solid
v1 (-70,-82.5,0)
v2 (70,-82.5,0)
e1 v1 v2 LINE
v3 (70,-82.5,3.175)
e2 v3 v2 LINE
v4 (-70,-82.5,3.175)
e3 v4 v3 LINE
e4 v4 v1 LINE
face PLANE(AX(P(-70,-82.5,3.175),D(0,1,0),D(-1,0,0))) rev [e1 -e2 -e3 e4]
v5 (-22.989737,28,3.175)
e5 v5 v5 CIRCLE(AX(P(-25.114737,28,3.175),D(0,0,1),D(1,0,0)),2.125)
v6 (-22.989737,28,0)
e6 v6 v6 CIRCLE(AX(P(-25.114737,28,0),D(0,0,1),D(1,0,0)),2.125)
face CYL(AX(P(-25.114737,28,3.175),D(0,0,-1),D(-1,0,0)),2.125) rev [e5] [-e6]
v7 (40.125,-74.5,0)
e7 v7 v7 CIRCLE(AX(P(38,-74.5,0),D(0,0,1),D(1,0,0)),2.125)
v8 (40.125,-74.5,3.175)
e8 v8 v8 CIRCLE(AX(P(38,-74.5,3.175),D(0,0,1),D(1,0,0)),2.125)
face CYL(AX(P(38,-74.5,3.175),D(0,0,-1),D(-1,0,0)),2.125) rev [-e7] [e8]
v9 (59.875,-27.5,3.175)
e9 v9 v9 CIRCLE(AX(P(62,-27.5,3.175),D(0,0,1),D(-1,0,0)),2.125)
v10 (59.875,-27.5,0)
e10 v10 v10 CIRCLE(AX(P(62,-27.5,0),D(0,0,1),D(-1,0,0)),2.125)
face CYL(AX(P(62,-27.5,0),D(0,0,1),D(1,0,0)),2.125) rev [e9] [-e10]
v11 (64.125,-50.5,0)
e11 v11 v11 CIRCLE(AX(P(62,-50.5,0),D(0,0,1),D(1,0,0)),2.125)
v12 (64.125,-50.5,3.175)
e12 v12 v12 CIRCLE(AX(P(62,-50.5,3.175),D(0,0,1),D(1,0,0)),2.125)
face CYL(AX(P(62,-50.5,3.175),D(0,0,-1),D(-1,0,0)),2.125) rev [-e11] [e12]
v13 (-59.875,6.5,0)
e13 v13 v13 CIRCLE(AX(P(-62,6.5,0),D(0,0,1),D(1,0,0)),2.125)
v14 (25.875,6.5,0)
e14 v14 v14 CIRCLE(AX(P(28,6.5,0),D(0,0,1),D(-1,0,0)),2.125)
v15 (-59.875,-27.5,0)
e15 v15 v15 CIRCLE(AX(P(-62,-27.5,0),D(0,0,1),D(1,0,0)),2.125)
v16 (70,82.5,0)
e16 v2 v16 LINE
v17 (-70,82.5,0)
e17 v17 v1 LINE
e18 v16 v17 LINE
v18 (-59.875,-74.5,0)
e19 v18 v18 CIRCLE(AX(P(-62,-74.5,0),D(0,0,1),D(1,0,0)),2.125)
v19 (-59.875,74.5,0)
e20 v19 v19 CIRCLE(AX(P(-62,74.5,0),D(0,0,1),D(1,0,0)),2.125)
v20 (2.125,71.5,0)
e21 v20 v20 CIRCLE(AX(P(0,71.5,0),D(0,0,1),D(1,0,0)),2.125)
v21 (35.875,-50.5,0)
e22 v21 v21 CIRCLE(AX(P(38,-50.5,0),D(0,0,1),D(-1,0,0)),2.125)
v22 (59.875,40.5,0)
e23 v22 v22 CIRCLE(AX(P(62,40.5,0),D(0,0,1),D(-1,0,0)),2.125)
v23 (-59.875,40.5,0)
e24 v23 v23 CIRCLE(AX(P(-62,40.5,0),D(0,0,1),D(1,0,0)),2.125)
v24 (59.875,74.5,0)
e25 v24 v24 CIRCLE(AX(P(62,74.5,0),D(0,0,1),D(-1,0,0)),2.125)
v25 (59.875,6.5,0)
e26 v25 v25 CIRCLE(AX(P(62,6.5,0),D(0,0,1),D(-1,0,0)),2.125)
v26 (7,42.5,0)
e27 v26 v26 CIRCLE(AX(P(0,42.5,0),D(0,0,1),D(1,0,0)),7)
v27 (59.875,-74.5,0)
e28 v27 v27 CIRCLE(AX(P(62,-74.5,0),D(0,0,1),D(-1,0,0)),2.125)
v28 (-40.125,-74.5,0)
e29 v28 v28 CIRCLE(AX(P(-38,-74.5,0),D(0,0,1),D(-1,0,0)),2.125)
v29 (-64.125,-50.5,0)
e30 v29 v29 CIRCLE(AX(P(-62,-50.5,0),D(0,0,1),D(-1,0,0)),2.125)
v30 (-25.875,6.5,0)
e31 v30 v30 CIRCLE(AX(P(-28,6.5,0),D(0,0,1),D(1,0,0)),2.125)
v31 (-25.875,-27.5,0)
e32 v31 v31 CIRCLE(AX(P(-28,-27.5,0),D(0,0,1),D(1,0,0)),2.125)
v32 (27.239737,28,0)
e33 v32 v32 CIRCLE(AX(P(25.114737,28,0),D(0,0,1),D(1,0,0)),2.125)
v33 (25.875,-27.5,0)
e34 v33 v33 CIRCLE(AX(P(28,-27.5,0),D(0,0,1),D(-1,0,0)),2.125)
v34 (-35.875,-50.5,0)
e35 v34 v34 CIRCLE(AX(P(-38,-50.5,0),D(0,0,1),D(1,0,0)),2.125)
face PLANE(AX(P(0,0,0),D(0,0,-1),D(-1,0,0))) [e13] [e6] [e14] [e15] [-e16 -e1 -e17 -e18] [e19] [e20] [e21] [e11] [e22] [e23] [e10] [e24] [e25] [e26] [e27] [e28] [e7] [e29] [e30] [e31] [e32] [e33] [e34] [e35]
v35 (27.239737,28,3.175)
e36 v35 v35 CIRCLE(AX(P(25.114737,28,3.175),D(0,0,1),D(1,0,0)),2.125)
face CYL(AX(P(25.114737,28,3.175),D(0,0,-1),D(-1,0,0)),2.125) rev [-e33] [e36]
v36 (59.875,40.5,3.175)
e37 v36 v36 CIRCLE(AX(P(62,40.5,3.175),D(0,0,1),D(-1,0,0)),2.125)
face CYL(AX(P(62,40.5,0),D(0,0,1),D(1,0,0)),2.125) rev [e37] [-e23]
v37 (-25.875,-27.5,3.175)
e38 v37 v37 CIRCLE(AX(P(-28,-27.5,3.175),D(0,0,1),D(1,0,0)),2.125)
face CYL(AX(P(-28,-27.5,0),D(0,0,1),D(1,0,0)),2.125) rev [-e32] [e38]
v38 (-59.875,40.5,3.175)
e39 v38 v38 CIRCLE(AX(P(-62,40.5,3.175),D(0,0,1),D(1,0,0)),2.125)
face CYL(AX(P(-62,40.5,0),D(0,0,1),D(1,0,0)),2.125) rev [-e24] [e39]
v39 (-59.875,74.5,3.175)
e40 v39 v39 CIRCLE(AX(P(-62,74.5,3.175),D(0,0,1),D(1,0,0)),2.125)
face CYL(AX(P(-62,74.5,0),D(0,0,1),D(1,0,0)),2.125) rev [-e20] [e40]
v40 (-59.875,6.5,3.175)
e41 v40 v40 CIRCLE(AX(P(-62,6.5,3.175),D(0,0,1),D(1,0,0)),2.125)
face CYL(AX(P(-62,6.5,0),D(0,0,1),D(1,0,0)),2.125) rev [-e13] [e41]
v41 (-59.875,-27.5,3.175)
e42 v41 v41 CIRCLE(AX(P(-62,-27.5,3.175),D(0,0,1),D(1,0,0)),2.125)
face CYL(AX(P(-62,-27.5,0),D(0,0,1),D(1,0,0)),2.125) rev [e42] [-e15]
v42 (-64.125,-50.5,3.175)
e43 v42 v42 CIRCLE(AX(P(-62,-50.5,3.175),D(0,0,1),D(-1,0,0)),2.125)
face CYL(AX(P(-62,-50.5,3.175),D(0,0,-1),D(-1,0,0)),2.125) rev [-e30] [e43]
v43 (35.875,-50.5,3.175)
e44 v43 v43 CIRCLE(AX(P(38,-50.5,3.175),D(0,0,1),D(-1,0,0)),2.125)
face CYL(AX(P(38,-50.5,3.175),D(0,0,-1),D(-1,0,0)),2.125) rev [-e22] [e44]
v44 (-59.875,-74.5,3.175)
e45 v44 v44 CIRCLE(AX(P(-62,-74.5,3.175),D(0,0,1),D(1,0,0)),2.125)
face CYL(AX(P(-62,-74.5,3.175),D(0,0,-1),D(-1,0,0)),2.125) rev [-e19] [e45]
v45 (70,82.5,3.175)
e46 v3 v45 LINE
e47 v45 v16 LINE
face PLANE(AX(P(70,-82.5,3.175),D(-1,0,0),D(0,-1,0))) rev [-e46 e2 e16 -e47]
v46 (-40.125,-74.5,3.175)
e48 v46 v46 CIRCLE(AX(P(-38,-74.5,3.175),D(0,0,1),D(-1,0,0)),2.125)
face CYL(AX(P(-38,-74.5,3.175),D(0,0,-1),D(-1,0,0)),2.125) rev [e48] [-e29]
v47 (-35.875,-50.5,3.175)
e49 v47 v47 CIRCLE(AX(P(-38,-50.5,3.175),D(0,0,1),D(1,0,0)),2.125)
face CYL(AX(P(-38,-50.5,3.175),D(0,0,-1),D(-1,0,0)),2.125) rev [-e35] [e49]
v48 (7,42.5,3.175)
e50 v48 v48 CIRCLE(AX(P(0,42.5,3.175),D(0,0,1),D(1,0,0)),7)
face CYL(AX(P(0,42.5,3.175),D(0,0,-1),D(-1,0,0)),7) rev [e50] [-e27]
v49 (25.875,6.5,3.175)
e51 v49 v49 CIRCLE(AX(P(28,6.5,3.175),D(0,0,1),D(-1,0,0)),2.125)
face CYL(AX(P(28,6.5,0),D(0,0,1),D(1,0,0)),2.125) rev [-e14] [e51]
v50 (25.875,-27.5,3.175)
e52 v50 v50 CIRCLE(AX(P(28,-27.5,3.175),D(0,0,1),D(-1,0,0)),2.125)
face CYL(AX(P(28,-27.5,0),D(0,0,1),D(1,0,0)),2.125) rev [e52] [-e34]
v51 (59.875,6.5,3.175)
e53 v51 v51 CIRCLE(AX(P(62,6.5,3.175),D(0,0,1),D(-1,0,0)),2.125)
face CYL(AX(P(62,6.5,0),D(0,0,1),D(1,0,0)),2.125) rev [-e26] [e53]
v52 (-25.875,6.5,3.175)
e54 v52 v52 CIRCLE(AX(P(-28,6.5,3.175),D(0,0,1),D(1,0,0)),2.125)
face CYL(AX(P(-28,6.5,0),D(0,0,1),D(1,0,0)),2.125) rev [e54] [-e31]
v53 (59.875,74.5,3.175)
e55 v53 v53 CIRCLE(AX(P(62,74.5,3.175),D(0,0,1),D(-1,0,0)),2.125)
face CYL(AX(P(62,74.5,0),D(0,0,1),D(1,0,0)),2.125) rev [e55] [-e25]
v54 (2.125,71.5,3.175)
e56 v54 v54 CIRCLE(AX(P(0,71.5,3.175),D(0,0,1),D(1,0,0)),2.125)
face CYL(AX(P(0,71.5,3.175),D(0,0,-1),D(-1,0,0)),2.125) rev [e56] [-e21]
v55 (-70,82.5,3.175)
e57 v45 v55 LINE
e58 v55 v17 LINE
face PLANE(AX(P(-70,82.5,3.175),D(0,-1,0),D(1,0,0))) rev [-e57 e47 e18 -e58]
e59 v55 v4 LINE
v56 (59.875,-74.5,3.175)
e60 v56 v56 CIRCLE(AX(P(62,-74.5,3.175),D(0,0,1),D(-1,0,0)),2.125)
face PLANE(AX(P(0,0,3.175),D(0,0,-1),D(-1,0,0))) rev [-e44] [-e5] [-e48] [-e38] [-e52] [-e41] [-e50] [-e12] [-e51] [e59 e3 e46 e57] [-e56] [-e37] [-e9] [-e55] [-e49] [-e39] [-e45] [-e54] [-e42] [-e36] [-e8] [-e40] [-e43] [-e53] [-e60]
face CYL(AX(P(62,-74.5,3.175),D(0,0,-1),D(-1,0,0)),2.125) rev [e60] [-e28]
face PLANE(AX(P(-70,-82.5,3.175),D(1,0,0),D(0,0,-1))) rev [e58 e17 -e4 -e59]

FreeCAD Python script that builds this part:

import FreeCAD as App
import Part
import Sketcher

doc = App.newDocument("Part")
body = doc.addObject("PartDesign::Body", "Body")

# Sketch on XY plane
sketch1 = doc.addObject("Sketcher::SketchObject", "Sketch")
body.addObject(sketch1)
sketch1.AttachmentSupport = (doc.XY_Plane, [""])
sketch1.MapMode = "FlatFace"
sketch1.addGeometry(Part.LineSegment(App.Vector(-70, 82.5, 0), App.Vector(-70, -82.5, 0)), False)
sketch1.addGeometry(Part.LineSegment(App.Vector(-70, -82.5, 0), App.Vector(70, -82.5, 0)), False)
sketch1.addGeometry(Part.LineSegment(App.Vector(70, -82.5, 0), App.Vector(70, 82.5, 0)), False)
sketch1.addGeometry(Part.LineSegment(App.Vector(70, 82.5, 0), App.Vector(-70, 82.5, 0)), False)
sketch1.addGeometry(Part.Circle(App.Vector(-62, -74.5, 0), App.Vector(0, 0, 1), 2.1), False)
sketch1.addGeometry(Part.Circle(App.Vector(-38, -74.5, 0), App.Vector(0, 0, 1), 2.1), False)
sketch1.addGeometry(Part.Circle(App.Vector(-62, -50.5, 0), App.Vector(0, 0, 1), 2.1), False)
sketch1.addGeometry(Part.Circle(App.Vector(-38, -50.5, 0), App.Vector(0, 0, 1), 2.1), False)
sketch1.addGeometry(Part.Circle(App.Vector(38, -74.5, 0), App.Vector(0, 0, 1), 2.1), False)
sketch1.addGeometry(Part.Circle(App.Vector(62, -74.5, 0), App.Vector(0, 0, 1), 2.1), False)
sketch1.addGeometry(Part.Circle(App.Vector(38, -50.5, 0), App.Vector(0, 0, 1), 2.1), False)
sketch1.addGeometry(Part.Circle(App.Vector(62, -50.5, 0), App.Vector(0, 0, 1), 2.1), False)
sketch1.addGeometry(Part.Circle(App.Vector(-25.1, 28, 0), App.Vector(0, 0, 1), 2.1), False)
sketch1.addGeometry(Part.Circle(App.Vector(25.1, 28, 0), App.Vector(0, 0, 1), 2.1), False)
sketch1.addGeometry(Part.Circle(App.Vector(0, 42.5, 0), App.Vector(0, 0, 1), 7), False)
sketch1.addGeometry(Part.Circle(App.Vector(0, 71.5, 0), App.Vector(0, 0, 1), 2.1), False)
sketch1.addConstraint(Sketcher.Constraint("Coincident", 0, 2, 1, 1))
sketch1.addConstraint(Sketcher.Constraint("Coincident", 1, 2, 2, 1))
sketch1.addConstraint(Sketcher.Constraint("Coincident", 2, 2, 3, 1))
sketch1.addConstraint(Sketcher.Constraint("Coincident", 3, 2, 0, 1))
sketch1.addConstraint(Sketcher.Constraint("Vertical", 0))
sketch1.addConstraint(Sketcher.Constraint("Horizontal", 1))
sketch1.addConstraint(Sketcher.Constraint("Vertical", 2))
sketch1.addConstraint(Sketcher.Constraint("Horizontal", 3))
sketch1.addConstraint(Sketcher.Constraint("Equal", 4, 5))
sketch1.addConstraint(Sketcher.Constraint("Equal", 5, 6))
sketch1.addConstraint(Sketcher.Constraint("Equal", 6, 7))
sketch1.addConstraint(Sketcher.Constraint("Equal", 7, 8))
sketch1.addConstraint(Sketcher.Constraint("Equal", 8, 9))
sketch1.addConstraint(Sketcher.Constraint("Equal", 9, 10))
sketch1.addConstraint(Sketcher.Constraint("Equal", 10, 11))
sketch1.addConstraint(Sketcher.Constraint("Equal", 11, 12))
sketch1.addConstraint(Sketcher.Constraint("Equal", 12, 13))
sketch1.addConstraint(Sketcher.Constraint("Equal", 13, 15))
sketch1.addConstraint(Sketcher.Constraint("Symmetric", 0, 2, 2, 2, -1, 1))
sketch1.addConstraint(Sketcher.Constraint("Symmetric", 5, 3, 8, 3, -2))
sketch1.addConstraint(Sketcher.Constraint("Symmetric", 4, 3, 9, 3, -2))
sketch1.addConstraint(Sketcher.Constraint("Symmetric", 7, 3, 10, 3, -2))
sketch1.addConstraint(Sketcher.Constraint("Symmetric", 6, 3, 11, 3, -2))
sketch1.addConstraint(Sketcher.Constraint("Symmetric", 12, 3, 13, 3, -2))
sketch1.addConstraint(Sketcher.Constraint("PointOnObject", 14, 3, -2))
sketch1.addConstraint(Sketcher.Constraint("PointOnObject", 15, 3, -2))
sketch1.addConstraint(Sketcher.Constraint("Horizontal", 4, 3, 5, 3))
sketch1.addConstraint(Sketcher.Constraint("Horizontal", 6, 3, 7, 3))
sketch1.addConstraint(Sketcher.Constraint("Vertical", 4, 3, 6, 3))
sketch1.addConstraint(Sketcher.Constraint("Vertical", 5, 3, 7, 3))
sketch1.addConstraint(Sketcher.Constraint("Diameter", 14, 14.0))
sketch1.addConstraint(Sketcher.Constraint("Diameter", 4, 4.25))
sketch1.addConstraint(Sketcher.Constraint("DistanceX", 1, 1, 1, 2, 140.0))
sketch1.addConstraint(Sketcher.Constraint("DistanceY", 0, 2, 0, 1, 165.0))
sketch1.addConstraint(Sketcher.Constraint("DistanceX", 4, 3, -1, 1, 62.0))
sketch1.addConstraint(Sketcher.Constraint("DistanceX", 5, 3, -1, 1, 38.0))
sketch1.addConstraint(Sketcher.Constraint("DistanceY", -1, 1, 12, 3, 28.0))
sketch1.addConstraint(Sketcher.Constraint("DistanceY", 4, 3, 6, 3, 24.0))
sketch1.addConstraint(Sketcher.Constraint("DistanceY", 7, 3, 14, 3, 93.0))
sketch1.addConstraint(Sketcher.Constraint("DistanceY", 14, 3, 15, 3, 29.0))
sketch1.addConstraint(Sketcher.Constraint("DistanceY", 0, 2, 4, 3, 8.0))
sketch1.addConstraint(Sketcher.Constraint("DistanceX", 12, 3, -1, 1, 25.114737))
pad1 = doc.addObject("PartDesign::Pad", "Pad")
body.addObject(pad1)
pad1.Profile = sketch1
pad1.Length = 3.175

# Sketch on XY plane
sketch2 = doc.addObject("Sketcher::SketchObject", "Sketch001")
body.addObject(sketch2)
sketch2.AttachmentSupport = (doc.XY_Plane, [""])
sketch2.MapMode = "FlatFace"
sketch2.AttachmentOffset = App.Placement(App.Vector(0, 0, 3.175), App.Rotation())
sketch2.addGeometry(Part.Circle(App.Vector(-62, 74.5, 0), App.Vector(0, 0, 1), 2.1), False)
sketch2.addGeometry(Part.Circle(App.Vector(-62, 40.5, 0), App.Vector(0, 0, 1), 2.1), False)
sketch2.addGeometry(Part.Circle(App.Vector(-62, 6.5, 0), App.Vector(0, 0, 1), 2.1), False)
sketch2.addGeometry(Part.Circle(App.Vector(-62, -27.5, 0), App.Vector(0, 0, 1), 2.1), False)
sketch2.addGeometry(Part.Circle(App.Vector(-28, 6.5, 0), App.Vector(0, 0, 1), 2.1), False)
sketch2.addGeometry(Part.Circle(App.Vector(-28, -27.5, 0), App.Vector(0, 0, 1), 2.1), False)
sketch2.addGeometry(Part.Circle(App.Vector(28, -27.5, 0), App.Vector(0, 0, 1), 2.1), False)
sketch2.addGeometry(Part.Circle(App.Vector(28, 6.5, 0), App.Vector(0, 0, 1), 2.1), False)
sketch2.addGeometry(Part.Circle(App.Vector(62, -27.5, 0), App.Vector(0, 0, 1), 2.1), False)
sketch2.addGeometry(Part.Circle(App.Vector(62, 6.5, 0), App.Vector(0, 0, 1), 2.1), False)
sketch2.addGeometry(Part.Circle(App.Vector(62, 40.5, 0), App.Vector(0, 0, 1), 2.1), False)
sketch2.addGeometry(Part.Circle(App.Vector(62, 74.5, 0), App.Vector(0, 0, 1), 2.1), False)
sketch2.addConstraint(Sketcher.Constraint("Equal", 0, 1))
sketch2.addConstraint(Sketcher.Constraint("Equal", 1, 2))
sketch2.addConstraint(Sketcher.Constraint("Equal", 2, 3))
sketch2.addConstraint(Sketcher.Constraint("Equal", 3, 4))
sketch2.addConstraint(Sketcher.Constraint("Equal", 4, 5))
sketch2.addConstraint(Sketcher.Constraint("Equal", 5, 6))
sketch2.addConstraint(Sketcher.Constraint("Equal", 6, 7))
sketch2.addConstraint(Sketcher.Constraint("Equal", 7, 8))
sketch2.addConstraint(Sketcher.Constraint("Equal", 8, 9))
sketch2.addConstraint(Sketcher.Constraint("Equal", 9, 10))
sketch2.addConstraint(Sketcher.Constraint("Equal", 10, 11))
sketch2.addConstraint(Sketcher.Constraint("Symmetric", 5, 3, 6, 3, -2))
sketch2.addConstraint(Sketcher.Constraint("Symmetric", 4, 3, 7, 3, -2))
sketch2.addConstraint(Sketcher.Constraint("Symmetric", 3, 3, 8, 3, -2))
sketch2.addConstraint(Sketcher.Constraint("Symmetric", 2, 3, 9, 3, -2))
sketch2.addConstraint(Sketcher.Constraint("Symmetric", 1, 3, 10, 3, -2))
sketch2.addConstraint(Sketcher.Constraint("Symmetric", 0, 3, 11, 3, -2))
sketch2.addConstraint(Sketcher.Constraint("Horizontal", 2, 3, 4, 3))
sketch2.addConstraint(Sketcher.Constraint("Horizontal", 3, 3, 5, 3))
sketch2.addConstraint(Sketcher.Constraint("Vertical", 0, 3, 1, 3))
sketch2.addConstraint(Sketcher.Constraint("Vertical", 1, 3, 2, 3))
sketch2.addConstraint(Sketcher.Constraint("Vertical", 2, 3, 3, 3))
sketch2.addConstraint(Sketcher.Constraint("Vertical", 4, 3, 5, 3))
sketch2.addConstraint(Sketcher.Constraint("Diameter", 0, 4.25))
sketch2.addConstraint(Sketcher.Constraint("DistanceX", 0, 3, -1, 1, 62.0))
sketch2.addConstraint(Sketcher.Constraint("DistanceX", 4, 3, -1, 1, 28.0))
sketch2.addConstraint(Sketcher.Constraint("DistanceY", 1, 3, 0, 3, 34.0))
sketch2.addConstraint(Sketcher.Constraint("DistanceY", 2, 3, 1, 3, 34.0))
sketch2.addConstraint(Sketcher.Constraint("DistanceY", 3, 3, 2, 3, 34.0))
sketch2.addConstraint(Sketcher.Constraint("DistanceY", -1, 1, 0, 3, 74.5))
pocket1 = doc.addObject("PartDesign::Pocket", "Pocket")
body.addObject(pocket1)
pocket1.Profile = sketch2
pocket1.Type = "ThroughAll"

doc.recompute()
